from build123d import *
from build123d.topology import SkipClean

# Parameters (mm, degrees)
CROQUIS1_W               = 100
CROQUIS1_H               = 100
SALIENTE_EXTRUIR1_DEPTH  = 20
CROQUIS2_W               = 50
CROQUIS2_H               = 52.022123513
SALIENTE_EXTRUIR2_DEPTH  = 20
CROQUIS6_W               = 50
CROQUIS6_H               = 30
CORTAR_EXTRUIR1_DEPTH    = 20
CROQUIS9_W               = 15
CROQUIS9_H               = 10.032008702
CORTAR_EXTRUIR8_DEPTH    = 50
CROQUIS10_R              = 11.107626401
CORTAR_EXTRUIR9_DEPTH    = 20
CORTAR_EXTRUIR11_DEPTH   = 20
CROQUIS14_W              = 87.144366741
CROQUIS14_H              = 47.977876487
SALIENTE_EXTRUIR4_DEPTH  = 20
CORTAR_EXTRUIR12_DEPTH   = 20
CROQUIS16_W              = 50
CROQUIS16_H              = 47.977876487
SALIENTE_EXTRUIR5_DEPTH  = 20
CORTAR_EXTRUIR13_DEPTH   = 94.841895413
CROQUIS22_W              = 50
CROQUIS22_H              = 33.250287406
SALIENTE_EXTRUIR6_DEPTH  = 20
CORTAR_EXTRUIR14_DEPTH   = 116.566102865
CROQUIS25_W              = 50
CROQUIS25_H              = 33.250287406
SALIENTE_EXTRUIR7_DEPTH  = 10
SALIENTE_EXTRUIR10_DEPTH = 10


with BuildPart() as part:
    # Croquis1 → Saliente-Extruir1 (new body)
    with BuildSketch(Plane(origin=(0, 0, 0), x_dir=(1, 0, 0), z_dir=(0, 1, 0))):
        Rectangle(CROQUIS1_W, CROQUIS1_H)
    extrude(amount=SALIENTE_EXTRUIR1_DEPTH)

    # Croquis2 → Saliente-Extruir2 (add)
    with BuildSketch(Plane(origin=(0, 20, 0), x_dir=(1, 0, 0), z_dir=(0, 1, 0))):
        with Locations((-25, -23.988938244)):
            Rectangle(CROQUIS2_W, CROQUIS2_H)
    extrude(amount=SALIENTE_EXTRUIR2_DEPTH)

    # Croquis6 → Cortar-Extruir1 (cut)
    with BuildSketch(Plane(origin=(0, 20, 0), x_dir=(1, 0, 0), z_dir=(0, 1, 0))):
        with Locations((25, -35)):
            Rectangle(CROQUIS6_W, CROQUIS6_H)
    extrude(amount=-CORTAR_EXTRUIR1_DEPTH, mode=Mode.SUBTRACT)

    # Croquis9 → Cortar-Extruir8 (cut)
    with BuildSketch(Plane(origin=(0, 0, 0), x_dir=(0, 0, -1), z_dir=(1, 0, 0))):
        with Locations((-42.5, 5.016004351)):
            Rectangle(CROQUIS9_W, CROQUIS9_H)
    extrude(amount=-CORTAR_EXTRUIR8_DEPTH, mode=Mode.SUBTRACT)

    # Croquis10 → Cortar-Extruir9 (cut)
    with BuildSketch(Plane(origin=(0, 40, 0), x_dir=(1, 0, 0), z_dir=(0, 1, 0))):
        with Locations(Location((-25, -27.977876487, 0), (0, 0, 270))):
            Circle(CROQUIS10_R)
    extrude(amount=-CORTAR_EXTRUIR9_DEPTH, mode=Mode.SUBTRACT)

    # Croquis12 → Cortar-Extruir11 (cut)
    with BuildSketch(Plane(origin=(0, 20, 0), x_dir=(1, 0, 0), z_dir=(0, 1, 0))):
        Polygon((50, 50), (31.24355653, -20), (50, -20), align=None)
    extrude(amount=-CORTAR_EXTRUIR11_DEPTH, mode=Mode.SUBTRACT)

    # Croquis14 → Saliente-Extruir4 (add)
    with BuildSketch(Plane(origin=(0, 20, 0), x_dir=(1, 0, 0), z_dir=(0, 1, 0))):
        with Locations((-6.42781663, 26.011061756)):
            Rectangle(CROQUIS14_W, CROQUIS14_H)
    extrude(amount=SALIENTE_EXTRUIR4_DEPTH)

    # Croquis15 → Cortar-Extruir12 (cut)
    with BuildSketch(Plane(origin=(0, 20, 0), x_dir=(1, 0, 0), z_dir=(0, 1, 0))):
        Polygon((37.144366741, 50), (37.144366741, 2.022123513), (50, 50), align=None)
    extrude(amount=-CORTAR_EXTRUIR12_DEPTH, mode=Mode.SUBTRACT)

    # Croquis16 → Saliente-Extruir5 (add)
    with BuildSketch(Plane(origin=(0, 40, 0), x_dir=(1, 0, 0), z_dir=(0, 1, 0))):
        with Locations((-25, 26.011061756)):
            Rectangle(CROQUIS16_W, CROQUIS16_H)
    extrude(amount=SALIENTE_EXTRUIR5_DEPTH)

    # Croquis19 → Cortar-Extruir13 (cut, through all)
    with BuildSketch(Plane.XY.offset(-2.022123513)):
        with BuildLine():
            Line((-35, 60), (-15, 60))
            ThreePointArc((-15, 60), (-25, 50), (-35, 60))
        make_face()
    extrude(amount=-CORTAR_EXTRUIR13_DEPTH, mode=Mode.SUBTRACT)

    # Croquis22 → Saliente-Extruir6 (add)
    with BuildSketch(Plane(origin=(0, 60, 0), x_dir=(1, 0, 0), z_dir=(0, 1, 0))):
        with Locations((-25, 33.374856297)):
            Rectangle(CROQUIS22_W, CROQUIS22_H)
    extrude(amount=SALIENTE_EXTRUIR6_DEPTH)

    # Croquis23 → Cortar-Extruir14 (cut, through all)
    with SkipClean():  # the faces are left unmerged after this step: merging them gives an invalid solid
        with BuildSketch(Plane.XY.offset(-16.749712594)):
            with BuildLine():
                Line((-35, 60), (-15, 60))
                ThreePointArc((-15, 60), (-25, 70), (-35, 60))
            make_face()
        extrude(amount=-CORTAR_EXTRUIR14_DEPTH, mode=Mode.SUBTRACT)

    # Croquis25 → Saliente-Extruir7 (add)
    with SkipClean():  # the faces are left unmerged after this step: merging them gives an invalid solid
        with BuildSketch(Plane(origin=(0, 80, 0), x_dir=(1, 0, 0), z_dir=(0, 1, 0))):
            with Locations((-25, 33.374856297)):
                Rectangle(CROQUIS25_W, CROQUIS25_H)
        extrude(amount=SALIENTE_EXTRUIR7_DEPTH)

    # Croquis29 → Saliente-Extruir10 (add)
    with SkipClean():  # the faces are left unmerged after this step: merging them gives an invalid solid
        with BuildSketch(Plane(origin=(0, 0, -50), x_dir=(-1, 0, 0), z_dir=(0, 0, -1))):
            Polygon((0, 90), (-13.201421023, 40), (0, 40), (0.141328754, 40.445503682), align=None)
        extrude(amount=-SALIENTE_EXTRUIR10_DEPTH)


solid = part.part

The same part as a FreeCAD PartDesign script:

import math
import FreeCAD as App
import Part
import Sketcher

V = App.Vector
Q = App.Units.Quantity

doc = App.newDocument("Part")
body = doc.addObject("PartDesign::Body", "Body")

sketch1 = body.newObject("Sketcher::SketchObject", "Sketch")
sketch1.AttachmentSupport = (doc.getObject("XZ_Plane"), [""])
sketch1.MapMode = "FlatFace"
sketch1.addGeometry([
    Part.LineSegment(V(-50, -50, 0), V(-50, 50, 0)),
    Part.LineSegment(V(-50, 50, 0), V(50, 50, 0)),
    Part.LineSegment(V(50, 50, 0), V(50, -50, 0)),
    Part.LineSegment(V(50, -50, 0), V(-50, -50, 0)),
], False)
sketch1.addConstraint([
    Sketcher.Constraint("Coincident", 0, 2, 1, 1),
    Sketcher.Constraint("Coincident", 1, 2, 2, 1),
    Sketcher.Constraint("Coincident", 2, 2, 3, 1),
    Sketcher.Constraint("Coincident", 3, 2, 0, 1),
    Sketcher.Constraint("Vertical", 0),
    Sketcher.Constraint("Horizontal", 1),
    Sketcher.Constraint("Vertical", 2),
    Sketcher.Constraint("Horizontal", 3),
    Sketcher.Constraint("Symmetric", 0, 2, 2, 2, -1, 1),
    Sketcher.Constraint("Equal", 3, 0),
    Sketcher.Constraint("DistanceX", 1, 1, 1, 2, 100.0),
])
pad1 = body.newObject("PartDesign::Pad", "Pad")
pad1.Profile = sketch1
pad1.Length = 20
pad1.Reversed = True

sketch2 = body.newObject("Sketcher::SketchObject", "Sketch001")
sketch2.AttachmentSupport = (doc.getObject("XZ_Plane"), [""])
sketch2.MapMode = "FlatFace"
sketch2.AttachmentOffset = App.Placement(V(0, 0, -20), App.Rotation())
sketch2.addGeometry([
    Part.LineSegment(V(-50, -2, 0), V(-50, 50, 0)),
    Part.LineSegment(V(-50, 50, 0), V(0, 50, 0)),
    Part.LineSegment(V(0, 50, 0), V(0, -2, 0)),
    Part.LineSegment(V(0, -2, 0), V(-50, -2, 0)),
], False)
sketch2.addConstraint([
    Sketcher.Constraint("Coincident", 0, 2, 1, 1),
    Sketcher.Constraint("Coincident", 1, 2, 2, 1),
    Sketcher.Constraint("Coincident", 2, 2, 3, 1),
    Sketcher.Constraint("Coincident", 3, 2, 0, 1),
    Sketcher.Constraint("Vertical", 0),
    Sketcher.Constraint("Horizontal", 1),
    Sketcher.Constraint("Vertical", 2),
    Sketcher.Constraint("Horizontal", 3),
    Sketcher.Constraint("PointOnObject", 1, 2, -2),
    Sketcher.Constraint("DistanceX", 1, 1, 1, 2, 50.0),
    Sketcher.Constraint("DistanceY", -1, 1, 0, 2, 50.0),
    Sketcher.Constraint("DistanceY", 0, 1, 0, 2, 52.022124),
])
pad2 = body.newObject("PartDesign::Pad", "Pad001")
pad2.Profile = sketch2
pad2.Length = 20
pad2.Reversed = True

sketch3 = body.newObject("Sketcher::SketchObject", "Sketch002")
sketch3.AttachmentSupport = (doc.getObject("XZ_Plane"), [""])
sketch3.MapMode = "FlatFace"
sketch3.AttachmentOffset = App.Placement(V(0, 0, -20), App.Rotation())
sketch3.addGeometry([
    Part.LineSegment(V(0, 20, 0), V(0, 50, 0)),
    Part.LineSegment(V(0, 50, 0), V(50, 50, 0)),
    Part.LineSegment(V(50, 50, 0), V(50, 20, 0)),
    Part.LineSegment(V(50, 20, 0), V(0, 20, 0)),
], False)
sketch3.addConstraint([
    Sketcher.Constraint("Coincident", 0, 2, 1, 1),
    Sketcher.Constraint("Coincident", 1, 2, 2, 1),
    Sketcher.Constraint("Coincident", 2, 2, 3, 1),
    Sketcher.Constraint("Coincident", 3, 2, 0, 1),
    Sketcher.Constraint("Vertical", 0),
    Sketcher.Constraint("Horizontal", 1),
    Sketcher.Constraint("Vertical", 2),
    Sketcher.Constraint("Horizontal", 3),
    Sketcher.Constraint("PointOnObject", 0, 2, -2),
    Sketcher.Constraint("DistanceX", 1, 1, 1, 2, 50.0),
    Sketcher.Constraint("DistanceY", 0, 1, 0, 2, 30.0),
    Sketcher.Constraint("DistanceY", -1, 1, 0, 2, 50.0),
])
pocket1 = body.newObject("PartDesign::Pocket", "Pocket")
pocket1.Profile = sketch3
pocket1.Length = 20
pocket1.Reversed = True

sketch4 = body.newObject("Sketcher::SketchObject", "Sketch003")
sketch4.AttachmentSupport = (doc.getObject("YZ_Plane"), [""])
sketch4.MapMode = "FlatFace"
sketch4.addGeometry([
    Part.LineSegment(V(10, 50, 0), V(0, 50, 0)),
    Part.LineSegment(V(0, 50, 0), V(0, 35, 0)),
    Part.LineSegment(V(0, 35, 0), V(10, 35, 0)),
    Part.LineSegment(V(10, 35, 0), V(10, 50, 0)),
], False)
sketch4.addConstraint([
    Sketcher.Constraint("Coincident", 0, 2, 1, 1),
    Sketcher.Constraint("Coincident", 1, 2, 2, 1),
    Sketcher.Constraint("Coincident", 2, 2, 3, 1),
    Sketcher.Constraint("Coincident", 3, 2, 0, 1),
    Sketcher.Constraint("Horizontal", 0),
    Sketcher.Constraint("Vertical", 1),
    Sketcher.Constraint("Horizontal", 2),
    Sketcher.Constraint("Vertical", 3),
    Sketcher.Constraint("PointOnObject", 0, 2, -2),
    Sketcher.Constraint("DistanceY", 1, 2, 1, 1, 15.0),
    Sketcher.Constraint("DistanceY", -1, 1, 0, 2, 50.0),
    Sketcher.Constraint("DistanceX", 0, 2, 0, 1, 10.032009),
])
pocket2 = body.newObject("PartDesign::Pocket", "Pocket001")
pocket2.Profile = sketch4
pocket2.Length = 50

sketch5 = body.newObject("Sketcher::SketchObject", "Sketch004")
sketch5.AttachmentSupport = (doc.getObject("XZ_Plane"), [""])
sketch5.MapMode = "FlatFace"
sketch5.AttachmentOffset = App.Placement(V(0, 0, -40), App.Rotation())
sketch5.addGeometry(Part.Circle(V(-25, 28, 0), V(0, 0, 1), 11), False)
sketch5.addConstraint([
    Sketcher.Constraint("DistanceX", 0, 3, -1, 1, 25.0),
    Sketcher.Constraint("Diameter", 0, 22.215253),
    Sketcher.Constraint("DistanceY", -1, 1, 0, 3, 27.977876),
])
pocket3 = body.newObject("PartDesign::Pocket", "Pocket002")
pocket3.Profile = sketch5
pocket3.Length = 20
pocket3.Reversed = True

sketch6 = body.newObject("Sketcher::SketchObject", "Sketch005")
sketch6.AttachmentSupport = (doc.getObject("XZ_Plane"), [""])
sketch6.MapMode = "FlatFace"
sketch6.AttachmentOffset = App.Placement(V(0, 0, -20), App.Rotation())
sketch6.addGeometry([
    Part.LineSegment(V(50, -50, 0), V(31, 20, 0)),
    Part.LineSegment(V(31, 20, 0), V(50, 20, 0)),
    Part.LineSegment(V(50, 20, 0), V(50, -50, 0)),
], False)
sketch6.addConstraint([
    Sketcher.Constraint("Coincident", 0, 2, 1, 1),
    Sketcher.Constraint("Coincident", 1, 2, 2, 1),
    Sketcher.Constraint("Coincident", 2, 2, 0, 1),
    Sketcher.Constraint("Horizontal", 1),
    Sketcher.Constraint("Vertical", 2),
    Sketcher.Constraint("DistanceY", 2, 2, 2, 1, 70.0),
    Sketcher.Constraint("Angle", 0, Q("105 deg")),
    Sketcher.Constraint("DistanceY", -1, 1, 0, 2, 20.0),
    Sketcher.Constraint("DistanceX", -1, 1, 1, 2, 50.0),
])
pocket4 = body.newObject("PartDesign::Pocket", "Pocket003")
pocket4.Profile = sketch6
pocket4.Length = 20
pocket4.Reversed = True

sketch7 = body.newObject("Sketcher::SketchObject", "Sketch006")
sketch7.AttachmentSupport = (doc.getObject("XZ_Plane"), [""])
sketch7.MapMode = "FlatFace"
sketch7.AttachmentOffset = App.Placement(V(0, 0, -20), App.Rotation())
sketch7.addGeometry([
    Part.LineSegment(V(-50, -50, 0), V(-50, -2, 0)),
    Part.LineSegment(V(-50, -2, 0), V(37, -2, 0)),
    Part.LineSegment(V(37, -2, 0), V(37, -50, 0)),
    Part.LineSegment(V(37, -50, 0), V(-50, -50, 0)),
], False)
sketch7.addConstraint([
    Sketcher.Constraint("Coincident", 0, 2, 1, 1),
    Sketcher.Constraint("Coincident", 1, 2, 2, 1),
    Sketcher.Constraint("Coincident", 2, 2, 3, 1),
    Sketcher.Constraint("Coincident", 3, 2, 0, 1),
    Sketcher.Constraint("Vertical", 0),
    Sketcher.Constraint("Horizontal", 1),
    Sketcher.Constraint("Vertical", 2),
    Sketcher.Constraint("Horizontal", 3),
    Sketcher.Constraint("DistanceX", 0, 2, -1, 1, 50.0),
    Sketcher.Constraint("DistanceY", 2, 2, -1, 1, 50.0),
    Sketcher.Constraint("DistanceX", 1, 1, 1, 2, 87.144367),
    Sketcher.Constraint("DistanceY", 0, 1, 0, 2, 47.977876),
])
pad3 = body.newObject("PartDesign::Pad", "Pad002")
pad3.Profile = sketch7
pad3.Length = 20
pad3.Reversed = True

sketch8 = body.newObject("Sketcher::SketchObject", "Sketch007")
sketch8.AttachmentSupport = (doc.getObject("XZ_Plane"), [""])
sketch8.MapMode = "FlatFace"
sketch8.AttachmentOffset = App.Placement(V(0, 0, -20), App.Rotation())
sketch8.addGeometry([
    Part.LineSegment(V(37, -50, 0), V(37, -2, 0)),
    Part.LineSegment(V(37, -2, 0), V(50, -50, 0)),
    Part.LineSegment(V(50, -50, 0), V(37, -50, 0)),
], False)
sketch8.addConstraint([
    Sketcher.Constraint("Coincident", 0, 2, 1, 1),
    Sketcher.Constraint("Coincident", 1, 2, 2, 1),
    Sketcher.Constraint("Coincident", 2, 2, 0, 1),
    Sketcher.Constraint("Vertical", 0),
    Sketcher.Constraint("Horizontal", 2),
    Sketcher.Constraint("Angle", 1, Q("-75 deg")),
    Sketcher.Constraint("DistanceX", -1, 1, 1, 2, 50.0),
    Sketcher.Constraint("DistanceY", 1, 2, -1, 1, 50.0),
    Sketcher.Constraint("DistanceX", 2, 2, 2, 1, 12.855633),
])
pocket5 = body.newObject("PartDesign::Pocket", "Pocket004")
pocket5.Profile = sketch8
pocket5.Length = 20
pocket5.Reversed = True

sketch9 = body.newObject("Sketcher::SketchObject", "Sketch008")
sketch9.AttachmentSupport = (doc.getObject("XZ_Plane"), [""])
sketch9.MapMode = "FlatFace"
sketch9.AttachmentOffset = App.Placement(V(0, 0, -40), App.Rotation())
sketch9.addGeometry([
    Part.LineSegment(V(-50, -50, 0), V(-50, -2, 0)),
    Part.LineSegment(V(-50, -2, 0), V(0, -2, 0)),
    Part.LineSegment(V(0, -2, 0), V(0, -50, 0)),
    Part.LineSegment(V(0, -50, 0), V(-50, -50, 0)),
], False)
sketch9.addConstraint([
    Sketcher.Constraint("Coincident", 0, 2, 1, 1),
    Sketcher.Constraint("Coincident", 1, 2, 2, 1),
    Sketcher.Constraint("Coincident", 2, 2, 3, 1),
    Sketcher.Constraint("Coincident", 3, 2, 0, 1),
    Sketcher.Constraint("Vertical", 0),
    Sketcher.Constraint("Horizontal", 1),
    Sketcher.Constraint("Vertical", 2),
    Sketcher.Constraint("Horizontal", 3),
    Sketcher.Constraint("PointOnObject", 1, 2, -2),
    Sketcher.Constraint("DistanceX", 1, 1, 1, 2, 50.0),
    Sketcher.Constraint("DistanceY", 2, 2, -1, 1, 50.0),
    Sketcher.Constraint("DistanceY", 0, 1, 0, 2, 47.977876),
])
pad4 = body.newObject("PartDesign::Pad", "Pad003")
pad4.Profile = sketch9
pad4.Length = 20
pad4.Reversed = True

sketch10 = body.newObject("Sketcher::SketchObject", "Sketch009")
sketch10.AttachmentSupport = (doc.getObject("XY_Plane"), [""])
sketch10.MapMode = "FlatFace"
sketch10.AttachmentOffset = App.Placement(V(0, 0, -2.022124), App.Rotation())
sketch10.addGeometry([
    Part.LineSegment(V(-15, 60, 0), V(-35, 60, 0)),
    Part.ArcOfCircle(Part.Circle(V(-25, 60, 0), V(0, 0, 1), 10), math.radians(180), math.radians(360)),
], False)
sketch10.addConstraint([
    Sketcher.Constraint("Coincident", 0, 1, 1, 2),
    Sketcher.Constraint("Coincident", 1, 1, 0, 2),
    Sketcher.Constraint("Horizontal", 0),
    Sketcher.Constraint("Horizontal", 1, 3, 0, 1),
    Sketcher.Constraint("Radius", 1, 10.0),
    Sketcher.Constraint("DistanceX", 1, 3, -1, 1, 25.0),
    Sketcher.Constraint("DistanceY", -1, 1, 1, 3, 60.0),
])
pocket6 = body.newObject("PartDesign::Pocket", "Pocket005")
pocket6.Profile = sketch10
pocket6.Type = "ThroughAll"

sketch11 = body.newObject("Sketcher::SketchObject", "Sketch010")
sketch11.AttachmentSupport = (doc.getObject("XZ_Plane"), [""])
sketch11.MapMode = "FlatFace"
sketch11.AttachmentOffset = App.Placement(V(0, 0, -60), App.Rotation())
sketch11.addGeometry([
    Part.LineSegment(V(-50, -50, 0), V(-50, -17, 0)),
    Part.LineSegment(V(-50, -17, 0), V(0, -17, 0)),
    Part.LineSegment(V(0, -17, 0), V(0, -50, 0)),
    Part.LineSegment(V(0, -50, 0), V(-50, -50, 0)),
], False)
sketch11.addConstraint([
    Sketcher.Constraint("Coincident", 0, 2, 1, 1),
    Sketcher.Constraint("Coincident", 1, 2, 2, 1),
    Sketcher.Constraint("Coincident", 2, 2, 3, 1),
    Sketcher.Constraint("Coincident", 3, 2, 0, 1),
    Sketcher.Constraint("Vertical", 0),
    Sketcher.Constraint("Horizontal", 1),
    Sketcher.Constraint("Vertical", 2),
    Sketcher.Constraint("Horizontal", 3),
    Sketcher.Constraint("PointOnObject", 1, 2, -2),
    Sketcher.Constraint("DistanceX", 1, 1, 1, 2, 50.0),
    Sketcher.Constraint("DistanceY", 2, 2, -1, 1, 50.0),
    Sketcher.Constraint("DistanceY", 0, 1, 0, 2, 33.250287),
])
pad5 = body.newObject("PartDesign::Pad", "Pad004")
pad5.Profile = sketch11
pad5.Length = 20
pad5.Reversed = True

sketch12 = body.newObject("Sketcher::SketchObject", "Sketch011")
sketch12.AttachmentSupport = (doc.getObject("XY_Plane"), [""])
sketch12.MapMode = "FlatFace"
sketch12.AttachmentOffset = App.Placement(V(0, 0, -16.749713), App.Rotation())
sketch12.addGeometry([
    Part.LineSegment(V(-35, 60, 0), V(-15, 60, 0)),
    Part.ArcOfCircle(Part.Circle(V(-25, 60, 0), V(0, 0, 1), 10), math.radians(0), math.radians(180)),
], False)
sketch12.addConstraint([
    Sketcher.Constraint("Coincident", 0, 1, 1, 2),
    Sketcher.Constraint("Coincident", 1, 1, 0, 2),
    Sketcher.Constraint("Horizontal", 0),
    Sketcher.Constraint("Horizontal", 1, 3, 0, 1),
    Sketcher.Constraint("Radius", 1, 10.0),
    Sketcher.Constraint("DistanceX", 1, 3, -1, 1, 25.0),
    Sketcher.Constraint("DistanceY", -1, 1, 1, 3, 60.0),
])
pocket7 = body.newObject("PartDesign::Pocket", "Pocket006")
pocket7.Profile = sketch12
pocket7.Type = "ThroughAll"

sketch13 = body.newObject("Sketcher::SketchObject", "Sketch012")
sketch13.AttachmentSupport = (doc.getObject("XZ_Plane"), [""])
sketch13.MapMode = "FlatFace"
sketch13.AttachmentOffset = App.Placement(V(0, 0, -80), App.Rotation())
sketch13.addGeometry([
    Part.LineSegment(V(-50, -50, 0), V(-50, -17, 0)),
    Part.LineSegment(V(-50, -17, 0), V(0, -17, 0)),
    Part.LineSegment(V(0, -17, 0), V(0, -50, 0)),
    Part.LineSegment(V(0, -50, 0), V(-50, -50, 0)),
], False)
sketch13.addConstraint([
    Sketcher.Constraint("Coincident", 0, 2, 1, 1),
    Sketcher.Constraint("Coincident", 1, 2, 2, 1),
    Sketcher.Constraint("Coincident", 2, 2, 3, 1),
    Sketcher.Constraint("Coincident", 3, 2, 0, 1),
    Sketcher.Constraint("Vertical", 0),
    Sketcher.Constraint("Horizontal", 1),
    Sketcher.Constraint("Vertical", 2),
    Sketcher.Constraint("Horizontal", 3),
    Sketcher.Constraint("PointOnObject", 1, 2, -2),
    Sketcher.Constraint("DistanceX", 1, 1, 1, 2, 50.0),
    Sketcher.Constraint("DistanceY", 2, 2, -1, 1, 50.0),
    Sketcher.Constraint("DistanceY", 0, 1, 0, 2, 33.250287),
])
pad6 = body.newObject("PartDesign::Pad", "Pad005")
pad6.Profile = sketch13
pad6.Length = 10
pad6.Reversed = True

sketch14 = body.newObject("Sketcher::SketchObject", "Sketch013")
sketch14.AttachmentSupport = (doc.getObject("XY_Plane"), [""])
sketch14.MapMode = "FlatFace"
sketch14.AttachmentOffset = App.Placement(V(0, 0, -50), App.Rotation())
sketch14.addGeometry([
    Part.LineSegment(V(0, 90, 0), V(13.2, 40, 0)),
    Part.LineSegment(V(13.2, 40, 0), V(0, 40, 0)),
    Part.LineSegment(V(0, 40, 0), V(-0.14, 40.45, 0)),
    Part.LineSegment(V(-0.14, 40.45, 0), V(0, 90, 0)),
], False)
sketch14.addConstraint([
    Sketcher.Constraint("Coincident", 0, 2, 1, 1),
    Sketcher.Constraint("Coincident", 1, 2, 2, 1),
    Sketcher.Constraint("Coincident", 2, 2, 3, 1),
    Sketcher.Constraint("Coincident", 3, 2, 0, 1),
    Sketcher.Constraint("Horizontal", 1),
    Sketcher.Constraint("PointOnObject", 1, 2, -2),
    Sketcher.Constraint("PointOnObject", 3, 2, -2),
    Sketcher.Constraint("DistanceY", -1, 1, 0, 2, 40.0),
    Sketcher.Constraint("DistanceY", -1, 1, 3, 2, 90.0),
    Sketcher.Constraint("DistanceX", 1, 2, 1, 1, 13.201421),
    Sketcher.Constraint("DistanceX", 2, 2, -1, 1, 0.141329),
    Sketcher.Constraint("Distance", 2, 0.467384),
])
pad7 = body.newObject("PartDesign::Pad", "Pad006")
pad7.Profile = sketch14
pad7.Length = 10

doc.recompute()
